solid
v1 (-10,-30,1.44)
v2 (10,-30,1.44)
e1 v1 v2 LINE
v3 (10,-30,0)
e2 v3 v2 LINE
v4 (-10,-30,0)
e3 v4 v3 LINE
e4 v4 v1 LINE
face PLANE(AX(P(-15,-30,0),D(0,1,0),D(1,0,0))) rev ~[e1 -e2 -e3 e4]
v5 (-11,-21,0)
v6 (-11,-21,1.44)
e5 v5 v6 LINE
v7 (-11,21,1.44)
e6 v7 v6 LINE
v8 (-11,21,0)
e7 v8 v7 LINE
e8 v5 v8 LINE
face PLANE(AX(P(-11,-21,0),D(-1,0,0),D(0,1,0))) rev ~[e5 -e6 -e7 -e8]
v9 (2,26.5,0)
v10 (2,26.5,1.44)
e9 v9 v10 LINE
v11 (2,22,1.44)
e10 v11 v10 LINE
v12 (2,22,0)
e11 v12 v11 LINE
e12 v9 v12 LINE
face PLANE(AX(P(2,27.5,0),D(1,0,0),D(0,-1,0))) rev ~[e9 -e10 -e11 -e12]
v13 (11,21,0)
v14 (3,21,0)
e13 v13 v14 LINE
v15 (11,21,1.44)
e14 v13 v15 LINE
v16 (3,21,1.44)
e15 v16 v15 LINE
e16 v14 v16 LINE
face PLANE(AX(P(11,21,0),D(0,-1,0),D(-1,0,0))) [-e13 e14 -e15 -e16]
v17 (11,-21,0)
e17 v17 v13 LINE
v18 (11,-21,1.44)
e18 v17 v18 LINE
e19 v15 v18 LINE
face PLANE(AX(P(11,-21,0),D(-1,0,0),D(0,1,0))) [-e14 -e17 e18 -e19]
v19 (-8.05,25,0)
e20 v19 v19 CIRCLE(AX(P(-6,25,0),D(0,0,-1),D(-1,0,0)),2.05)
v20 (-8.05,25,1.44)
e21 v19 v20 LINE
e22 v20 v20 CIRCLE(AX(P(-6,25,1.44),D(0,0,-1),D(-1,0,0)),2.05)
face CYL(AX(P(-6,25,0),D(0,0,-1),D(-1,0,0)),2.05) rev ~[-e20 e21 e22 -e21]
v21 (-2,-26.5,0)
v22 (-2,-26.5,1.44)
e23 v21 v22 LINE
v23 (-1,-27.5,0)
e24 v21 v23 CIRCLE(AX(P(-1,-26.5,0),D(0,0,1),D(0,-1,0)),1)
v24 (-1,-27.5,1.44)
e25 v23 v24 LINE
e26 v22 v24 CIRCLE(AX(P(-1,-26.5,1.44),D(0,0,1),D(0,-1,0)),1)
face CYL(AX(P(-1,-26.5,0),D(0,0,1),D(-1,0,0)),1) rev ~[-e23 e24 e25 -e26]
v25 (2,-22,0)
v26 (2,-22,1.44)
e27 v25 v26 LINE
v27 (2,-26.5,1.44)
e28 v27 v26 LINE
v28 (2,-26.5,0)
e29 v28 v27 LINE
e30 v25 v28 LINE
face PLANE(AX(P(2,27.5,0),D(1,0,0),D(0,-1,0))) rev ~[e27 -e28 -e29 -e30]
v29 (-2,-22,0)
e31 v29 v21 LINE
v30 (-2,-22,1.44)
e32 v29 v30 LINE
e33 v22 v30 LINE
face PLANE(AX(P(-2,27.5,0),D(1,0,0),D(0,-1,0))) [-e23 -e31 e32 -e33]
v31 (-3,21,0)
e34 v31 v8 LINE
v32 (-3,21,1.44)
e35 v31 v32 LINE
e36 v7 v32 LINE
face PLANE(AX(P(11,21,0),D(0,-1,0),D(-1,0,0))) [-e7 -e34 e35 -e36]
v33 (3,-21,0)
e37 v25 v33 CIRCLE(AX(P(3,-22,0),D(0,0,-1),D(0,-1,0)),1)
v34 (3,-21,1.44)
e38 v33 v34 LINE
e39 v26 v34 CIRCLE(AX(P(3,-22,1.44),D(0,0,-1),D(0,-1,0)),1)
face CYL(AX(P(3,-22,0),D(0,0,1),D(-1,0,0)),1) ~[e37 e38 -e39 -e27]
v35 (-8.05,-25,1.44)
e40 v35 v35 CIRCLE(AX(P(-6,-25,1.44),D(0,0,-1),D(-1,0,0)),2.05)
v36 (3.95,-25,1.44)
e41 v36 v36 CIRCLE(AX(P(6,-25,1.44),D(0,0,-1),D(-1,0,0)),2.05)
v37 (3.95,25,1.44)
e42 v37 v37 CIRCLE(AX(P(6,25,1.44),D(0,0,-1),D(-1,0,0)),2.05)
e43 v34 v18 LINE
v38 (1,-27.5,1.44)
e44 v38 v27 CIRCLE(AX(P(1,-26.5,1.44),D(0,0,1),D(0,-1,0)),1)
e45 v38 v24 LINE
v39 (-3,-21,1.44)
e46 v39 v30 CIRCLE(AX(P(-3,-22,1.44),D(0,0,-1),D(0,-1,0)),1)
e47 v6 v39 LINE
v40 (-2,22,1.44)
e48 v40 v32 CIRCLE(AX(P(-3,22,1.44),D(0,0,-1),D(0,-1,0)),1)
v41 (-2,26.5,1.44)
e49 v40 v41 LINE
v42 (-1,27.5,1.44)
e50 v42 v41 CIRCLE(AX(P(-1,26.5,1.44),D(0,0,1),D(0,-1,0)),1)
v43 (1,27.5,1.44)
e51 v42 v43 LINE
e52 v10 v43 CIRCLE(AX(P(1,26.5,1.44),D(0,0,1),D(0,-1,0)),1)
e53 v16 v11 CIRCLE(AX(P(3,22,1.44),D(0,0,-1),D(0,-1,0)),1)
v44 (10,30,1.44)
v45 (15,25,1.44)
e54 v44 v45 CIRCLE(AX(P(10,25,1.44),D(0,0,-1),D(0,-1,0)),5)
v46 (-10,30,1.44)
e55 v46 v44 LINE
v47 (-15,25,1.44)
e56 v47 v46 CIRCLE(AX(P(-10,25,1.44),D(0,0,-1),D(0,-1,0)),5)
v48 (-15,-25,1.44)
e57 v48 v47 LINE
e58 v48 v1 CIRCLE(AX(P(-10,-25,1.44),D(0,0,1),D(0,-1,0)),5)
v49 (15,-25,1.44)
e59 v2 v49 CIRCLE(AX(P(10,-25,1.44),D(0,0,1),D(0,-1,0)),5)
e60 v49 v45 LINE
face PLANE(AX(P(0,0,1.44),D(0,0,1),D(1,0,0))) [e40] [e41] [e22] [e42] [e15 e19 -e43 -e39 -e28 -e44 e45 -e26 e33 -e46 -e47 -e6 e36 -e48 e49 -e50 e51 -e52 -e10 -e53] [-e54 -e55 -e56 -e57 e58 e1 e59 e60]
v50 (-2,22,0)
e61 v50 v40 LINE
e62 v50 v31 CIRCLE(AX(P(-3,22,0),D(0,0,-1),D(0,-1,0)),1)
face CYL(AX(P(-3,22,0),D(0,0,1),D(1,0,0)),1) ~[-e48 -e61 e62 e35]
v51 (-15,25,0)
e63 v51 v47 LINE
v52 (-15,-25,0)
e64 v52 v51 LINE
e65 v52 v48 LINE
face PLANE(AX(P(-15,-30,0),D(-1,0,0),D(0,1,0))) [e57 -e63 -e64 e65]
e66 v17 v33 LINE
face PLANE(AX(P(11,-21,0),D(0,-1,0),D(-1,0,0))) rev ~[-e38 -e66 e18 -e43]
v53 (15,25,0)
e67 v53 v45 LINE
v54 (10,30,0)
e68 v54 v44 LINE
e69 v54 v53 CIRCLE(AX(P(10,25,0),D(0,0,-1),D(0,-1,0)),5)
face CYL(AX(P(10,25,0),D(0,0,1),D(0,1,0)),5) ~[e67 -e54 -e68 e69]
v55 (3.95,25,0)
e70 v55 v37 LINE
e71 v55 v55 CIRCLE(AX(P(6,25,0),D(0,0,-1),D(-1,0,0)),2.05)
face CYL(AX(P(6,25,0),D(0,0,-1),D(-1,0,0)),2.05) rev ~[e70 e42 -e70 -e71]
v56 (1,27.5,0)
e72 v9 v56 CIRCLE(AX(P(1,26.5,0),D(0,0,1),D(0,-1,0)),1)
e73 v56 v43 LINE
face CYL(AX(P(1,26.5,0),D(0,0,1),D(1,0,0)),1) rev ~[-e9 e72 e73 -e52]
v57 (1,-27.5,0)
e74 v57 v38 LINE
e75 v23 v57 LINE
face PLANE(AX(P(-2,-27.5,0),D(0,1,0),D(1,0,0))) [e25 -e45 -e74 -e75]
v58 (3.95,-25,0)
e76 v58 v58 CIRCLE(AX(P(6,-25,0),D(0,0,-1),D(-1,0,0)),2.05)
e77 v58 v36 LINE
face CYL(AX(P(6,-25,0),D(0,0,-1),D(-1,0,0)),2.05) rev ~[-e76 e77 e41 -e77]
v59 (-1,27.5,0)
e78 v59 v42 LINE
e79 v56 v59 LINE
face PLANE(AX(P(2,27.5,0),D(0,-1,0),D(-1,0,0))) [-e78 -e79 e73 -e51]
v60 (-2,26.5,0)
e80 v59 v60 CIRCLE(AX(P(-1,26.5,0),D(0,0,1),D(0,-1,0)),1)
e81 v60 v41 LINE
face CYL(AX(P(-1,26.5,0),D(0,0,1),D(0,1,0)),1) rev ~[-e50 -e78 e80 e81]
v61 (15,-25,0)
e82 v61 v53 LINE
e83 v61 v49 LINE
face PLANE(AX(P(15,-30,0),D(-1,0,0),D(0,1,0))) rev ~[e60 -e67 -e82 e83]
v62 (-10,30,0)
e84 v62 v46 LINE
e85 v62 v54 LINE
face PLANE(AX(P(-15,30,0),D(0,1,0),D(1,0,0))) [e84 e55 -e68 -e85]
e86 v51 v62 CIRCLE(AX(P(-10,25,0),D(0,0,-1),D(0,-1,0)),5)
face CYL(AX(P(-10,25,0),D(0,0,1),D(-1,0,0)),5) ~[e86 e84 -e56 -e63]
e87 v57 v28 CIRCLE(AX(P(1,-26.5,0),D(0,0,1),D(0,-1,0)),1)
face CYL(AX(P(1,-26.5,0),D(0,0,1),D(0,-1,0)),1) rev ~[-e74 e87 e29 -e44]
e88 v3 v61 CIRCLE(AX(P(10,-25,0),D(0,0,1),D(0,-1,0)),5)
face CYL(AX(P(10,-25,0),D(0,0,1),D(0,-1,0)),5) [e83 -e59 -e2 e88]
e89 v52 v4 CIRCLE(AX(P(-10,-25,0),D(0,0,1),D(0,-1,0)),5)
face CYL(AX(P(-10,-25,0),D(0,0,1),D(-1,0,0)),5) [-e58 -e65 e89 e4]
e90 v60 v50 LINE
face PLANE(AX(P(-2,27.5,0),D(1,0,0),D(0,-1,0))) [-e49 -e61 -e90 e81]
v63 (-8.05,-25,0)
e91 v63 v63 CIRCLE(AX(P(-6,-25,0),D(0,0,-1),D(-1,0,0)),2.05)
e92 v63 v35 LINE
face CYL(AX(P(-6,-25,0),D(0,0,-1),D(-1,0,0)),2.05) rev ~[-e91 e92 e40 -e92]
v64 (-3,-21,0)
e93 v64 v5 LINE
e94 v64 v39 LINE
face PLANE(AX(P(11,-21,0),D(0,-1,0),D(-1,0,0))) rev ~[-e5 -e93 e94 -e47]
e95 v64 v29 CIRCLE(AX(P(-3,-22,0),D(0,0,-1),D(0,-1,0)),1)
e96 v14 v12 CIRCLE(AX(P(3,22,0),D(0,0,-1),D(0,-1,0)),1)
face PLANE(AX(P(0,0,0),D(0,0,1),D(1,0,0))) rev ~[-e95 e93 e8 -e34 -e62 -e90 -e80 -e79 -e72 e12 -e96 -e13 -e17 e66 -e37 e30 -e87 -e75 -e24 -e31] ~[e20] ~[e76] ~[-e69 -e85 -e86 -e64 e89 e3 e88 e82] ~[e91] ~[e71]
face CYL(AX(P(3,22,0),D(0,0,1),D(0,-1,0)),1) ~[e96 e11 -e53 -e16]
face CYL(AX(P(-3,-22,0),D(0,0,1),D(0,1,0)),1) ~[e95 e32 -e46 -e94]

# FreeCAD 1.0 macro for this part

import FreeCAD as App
import Part
import Sketcher
from FreeCAD import Vector


def edges_at(feature, points):
    """Names of the edges that pass closest to the given points."""
    edges = feature.Shape.Edges
    near = lambda p: min(range(len(edges)), key=lambda i: edges[i].distToShape(Part.Vertex(*p))[0])
    return sorted({f"Edge{near(p) + 1}" for p in points})


def add_polygon(sketch, points):
    """Adds a closed chain of lines whose ends are joined by coincident constraints."""
    first, n = sketch.GeometryCount, len(points)
    for a, b in zip(points, points[1:] + points[:1]):
        sketch.addGeometry(Part.LineSegment(App.Vector(*a, 0), App.Vector(*b, 0)), False)
    for i in range(n):
        sketch.addConstraint(Sketcher.Constraint("Coincident", first + i, 2, first + (i + 1) % n, 1))

doc = App.newDocument("Part")
params = doc.addObject("Spreadsheet::Sheet", "Params")
for row, (alias, value) in enumerate([
    ("sketch1_width", "30 mm"),
    ("sketch1_height", "60 mm"),
    ("pad1_length", "1.44 mm"),
    ("sketch2_width", "22 mm"),
    ("sketch2_height", "42 mm"),
    ("sketch3_diameter", "4.1 mm"),
    ("sketch3_width", "4 mm"),
    ("sketch3_height", "55 mm"),
    ("fillet_radius", "5 mm"),
    ("fillet2_radius", "1 mm"),
], start=1):
    params.set(f"A{row}", alias)
    params.set(f"B{row}", "=" + value)
    params.setAlias(f"B{row}", alias)

body = doc.addObject("PartDesign::Body", "Body")

# Sketch on XY plane
sketch1 = doc.addObject("Sketcher::SketchObject", "Sketch")
body.addObject(sketch1)
sketch1.AttachmentSupport = (doc.XY_Plane, [""])
sketch1.MapMode = "FlatFace"
add_polygon(sketch1, [(-15, 30), (-15, -30), (15, -30), (15, 30)])  # lines 0-3
sketch1.addConstraint([
    Sketcher.Constraint("Vertical", 0),
    Sketcher.Constraint("Horizontal", 1),
    Sketcher.Constraint("Vertical", 2),
    Sketcher.Constraint("Horizontal", 3),
    Sketcher.Constraint("Symmetric", 0, 2, 2, 2, -1, 1),
    Sketcher.Constraint("DistanceX", 1, 1, 1, 2, 30.0),
    Sketcher.Constraint("DistanceY", 0, 2, 0, 1, 60.0),
])
sketch1.setExpression("Constraints[9]", "Params.sketch1_width")
sketch1.setExpression("Constraints[10]", "Params.sketch1_height")
pad1 = doc.addObject("PartDesign::Pad", "Pad")
body.addObject(pad1)
pad1.Profile = sketch1
pad1.setExpression("Length", "Params.pad1_length")

# Sketch on XY plane
sketch2 = doc.addObject("Sketcher::SketchObject", "Sketch001")
body.addObject(sketch2)
sketch2.AttachmentSupport = (doc.XY_Plane, [""])
sketch2.MapMode = "FlatFace"
add_polygon(sketch2, [(11, 21), (11, -21), (-11, -21), (-11, 21)])  # lines 0-3
sketch2.addConstraint([
    Sketcher.Constraint("Vertical", 0),
    Sketcher.Constraint("Horizontal", 1),
    Sketcher.Constraint("Vertical", 2),
    Sketcher.Constraint("Horizontal", 3),
    Sketcher.Constraint("Symmetric", 0, 2, 2, 2, -1, 1),
    Sketcher.Constraint("DistanceX", 1, 2, 1, 1, 22.0),
    Sketcher.Constraint("DistanceY", 0, 2, 0, 1, 42.0),
])
sketch2.setExpression("Constraints[9]", "Params.sketch2_width")
sketch2.setExpression("Constraints[10]", "Params.sketch2_height")
pocket1 = doc.addObject("PartDesign::Pocket", "Pocket")
body.addObject(pocket1)
pocket1.Profile = sketch2
pocket1.Type = "ThroughAll"
pocket1.Reversed = True

# Sketch on XY plane
sketch3 = doc.addObject("Sketcher::SketchObject", "Sketch002")
body.addObject(sketch3)
sketch3.AttachmentSupport = (doc.XY_Plane, [""])
sketch3.MapMode = "FlatFace"
sketch3.addGeometry(Part.Circle(Vector(6, 25, 0), Vector(0, 0, 1), 2.05), False)  # 0
sketch3.addGeometry(Part.Circle(Vector(-6, 25, 0), Vector(0, 0, 1), 2.05), False)  # 1
sketch3.addGeometry(Part.Circle(Vector(6, -25, 0), Vector(0, 0, 1), 2.05), False)  # 2
sketch3.addGeometry(Part.Circle(Vector(-6, -25, 0), Vector(0, 0, 1), 2.05), False)  # 3
add_polygon(sketch3, [(2, 27.5), (2, -27.5), (-2, -27.5), (-2, 27.5)])  # lines 4-7
sketch3.addConstraint([
    Sketcher.Constraint("Vertical", 4),
    Sketcher.Constraint("Horizontal", 5),
    Sketcher.Constraint("Vertical", 6),
    Sketcher.Constraint("Horizontal", 7),
    Sketcher.Constraint("Equal", 0, 1),
    Sketcher.Constraint("Equal", 1, 2),
    Sketcher.Constraint("Equal", 2, 3),
    Sketcher.Constraint("Symmetric", 1, 3, 2, 3, -1, 1),
    Sketcher.Constraint("Symmetric", 0, 3, 3, 3, -1, 1),
    Sketcher.Constraint("Symmetric", 4, 2, 6, 2, -1, 1),
    Sketcher.Constraint("Symmetric", 0, 3, 1, 3, -2),
    Sketcher.Constraint("Diameter", 0, 4.1),
    Sketcher.Constraint("DistanceX", 5, 2, 5, 1, 4.0),
    Sketcher.Constraint("DistanceY", 4, 2, 4, 1, 55.0),
    Sketcher.Constraint("DistanceX", -1, 1, 0, 3, 6.0),
    Sketcher.Constraint("DistanceY", -1, 1, 0, 3, 25.0),
])
sketch3.setExpression("Constraints[15]", "Params.sketch3_diameter")
sketch3.setExpression("Constraints[16]", "Params.sketch3_width")
sketch3.setExpression("Constraints[17]", "Params.sketch3_height")
pocket2 = doc.addObject("PartDesign::Pocket", "Pocket001")
body.addObject(pocket2)
pocket2.Profile = sketch3
pocket2.Type = "ThroughAll"
pocket2.Reversed = True
doc.recompute()

fillet = doc.addObject("PartDesign::Fillet", "Fillet")
body.addObject(fillet)
fillet.Base = (pocket2, edges_at(pocket2, [
    (-15, 30, 0.72),
    (15, 30, 0.72),
    (15, -30, 0.72),
    (-15, -30, 0.72),
]))
fillet.setExpression("Radius", "Params.fillet_radius")
doc.recompute()

fillet2 = doc.addObject("PartDesign::Fillet", "Fillet001")
body.addObject(fillet2)
fillet2.Base = (fillet, edges_at(fillet, [
    (2, -21, 0.72),
    (-2, -21, 0.72),
    (-2, 21, 0.72),
    (-2, 27.5, 0.72),
    (2, 21, 0.72),
    (2, -27.5, 0.72),
    (-2, -27.5, 0.72),
    (2, 27.5, 0.72),
]))
fillet2.setExpression("Radius", "Params.fillet2_radius")

doc.recompute()
